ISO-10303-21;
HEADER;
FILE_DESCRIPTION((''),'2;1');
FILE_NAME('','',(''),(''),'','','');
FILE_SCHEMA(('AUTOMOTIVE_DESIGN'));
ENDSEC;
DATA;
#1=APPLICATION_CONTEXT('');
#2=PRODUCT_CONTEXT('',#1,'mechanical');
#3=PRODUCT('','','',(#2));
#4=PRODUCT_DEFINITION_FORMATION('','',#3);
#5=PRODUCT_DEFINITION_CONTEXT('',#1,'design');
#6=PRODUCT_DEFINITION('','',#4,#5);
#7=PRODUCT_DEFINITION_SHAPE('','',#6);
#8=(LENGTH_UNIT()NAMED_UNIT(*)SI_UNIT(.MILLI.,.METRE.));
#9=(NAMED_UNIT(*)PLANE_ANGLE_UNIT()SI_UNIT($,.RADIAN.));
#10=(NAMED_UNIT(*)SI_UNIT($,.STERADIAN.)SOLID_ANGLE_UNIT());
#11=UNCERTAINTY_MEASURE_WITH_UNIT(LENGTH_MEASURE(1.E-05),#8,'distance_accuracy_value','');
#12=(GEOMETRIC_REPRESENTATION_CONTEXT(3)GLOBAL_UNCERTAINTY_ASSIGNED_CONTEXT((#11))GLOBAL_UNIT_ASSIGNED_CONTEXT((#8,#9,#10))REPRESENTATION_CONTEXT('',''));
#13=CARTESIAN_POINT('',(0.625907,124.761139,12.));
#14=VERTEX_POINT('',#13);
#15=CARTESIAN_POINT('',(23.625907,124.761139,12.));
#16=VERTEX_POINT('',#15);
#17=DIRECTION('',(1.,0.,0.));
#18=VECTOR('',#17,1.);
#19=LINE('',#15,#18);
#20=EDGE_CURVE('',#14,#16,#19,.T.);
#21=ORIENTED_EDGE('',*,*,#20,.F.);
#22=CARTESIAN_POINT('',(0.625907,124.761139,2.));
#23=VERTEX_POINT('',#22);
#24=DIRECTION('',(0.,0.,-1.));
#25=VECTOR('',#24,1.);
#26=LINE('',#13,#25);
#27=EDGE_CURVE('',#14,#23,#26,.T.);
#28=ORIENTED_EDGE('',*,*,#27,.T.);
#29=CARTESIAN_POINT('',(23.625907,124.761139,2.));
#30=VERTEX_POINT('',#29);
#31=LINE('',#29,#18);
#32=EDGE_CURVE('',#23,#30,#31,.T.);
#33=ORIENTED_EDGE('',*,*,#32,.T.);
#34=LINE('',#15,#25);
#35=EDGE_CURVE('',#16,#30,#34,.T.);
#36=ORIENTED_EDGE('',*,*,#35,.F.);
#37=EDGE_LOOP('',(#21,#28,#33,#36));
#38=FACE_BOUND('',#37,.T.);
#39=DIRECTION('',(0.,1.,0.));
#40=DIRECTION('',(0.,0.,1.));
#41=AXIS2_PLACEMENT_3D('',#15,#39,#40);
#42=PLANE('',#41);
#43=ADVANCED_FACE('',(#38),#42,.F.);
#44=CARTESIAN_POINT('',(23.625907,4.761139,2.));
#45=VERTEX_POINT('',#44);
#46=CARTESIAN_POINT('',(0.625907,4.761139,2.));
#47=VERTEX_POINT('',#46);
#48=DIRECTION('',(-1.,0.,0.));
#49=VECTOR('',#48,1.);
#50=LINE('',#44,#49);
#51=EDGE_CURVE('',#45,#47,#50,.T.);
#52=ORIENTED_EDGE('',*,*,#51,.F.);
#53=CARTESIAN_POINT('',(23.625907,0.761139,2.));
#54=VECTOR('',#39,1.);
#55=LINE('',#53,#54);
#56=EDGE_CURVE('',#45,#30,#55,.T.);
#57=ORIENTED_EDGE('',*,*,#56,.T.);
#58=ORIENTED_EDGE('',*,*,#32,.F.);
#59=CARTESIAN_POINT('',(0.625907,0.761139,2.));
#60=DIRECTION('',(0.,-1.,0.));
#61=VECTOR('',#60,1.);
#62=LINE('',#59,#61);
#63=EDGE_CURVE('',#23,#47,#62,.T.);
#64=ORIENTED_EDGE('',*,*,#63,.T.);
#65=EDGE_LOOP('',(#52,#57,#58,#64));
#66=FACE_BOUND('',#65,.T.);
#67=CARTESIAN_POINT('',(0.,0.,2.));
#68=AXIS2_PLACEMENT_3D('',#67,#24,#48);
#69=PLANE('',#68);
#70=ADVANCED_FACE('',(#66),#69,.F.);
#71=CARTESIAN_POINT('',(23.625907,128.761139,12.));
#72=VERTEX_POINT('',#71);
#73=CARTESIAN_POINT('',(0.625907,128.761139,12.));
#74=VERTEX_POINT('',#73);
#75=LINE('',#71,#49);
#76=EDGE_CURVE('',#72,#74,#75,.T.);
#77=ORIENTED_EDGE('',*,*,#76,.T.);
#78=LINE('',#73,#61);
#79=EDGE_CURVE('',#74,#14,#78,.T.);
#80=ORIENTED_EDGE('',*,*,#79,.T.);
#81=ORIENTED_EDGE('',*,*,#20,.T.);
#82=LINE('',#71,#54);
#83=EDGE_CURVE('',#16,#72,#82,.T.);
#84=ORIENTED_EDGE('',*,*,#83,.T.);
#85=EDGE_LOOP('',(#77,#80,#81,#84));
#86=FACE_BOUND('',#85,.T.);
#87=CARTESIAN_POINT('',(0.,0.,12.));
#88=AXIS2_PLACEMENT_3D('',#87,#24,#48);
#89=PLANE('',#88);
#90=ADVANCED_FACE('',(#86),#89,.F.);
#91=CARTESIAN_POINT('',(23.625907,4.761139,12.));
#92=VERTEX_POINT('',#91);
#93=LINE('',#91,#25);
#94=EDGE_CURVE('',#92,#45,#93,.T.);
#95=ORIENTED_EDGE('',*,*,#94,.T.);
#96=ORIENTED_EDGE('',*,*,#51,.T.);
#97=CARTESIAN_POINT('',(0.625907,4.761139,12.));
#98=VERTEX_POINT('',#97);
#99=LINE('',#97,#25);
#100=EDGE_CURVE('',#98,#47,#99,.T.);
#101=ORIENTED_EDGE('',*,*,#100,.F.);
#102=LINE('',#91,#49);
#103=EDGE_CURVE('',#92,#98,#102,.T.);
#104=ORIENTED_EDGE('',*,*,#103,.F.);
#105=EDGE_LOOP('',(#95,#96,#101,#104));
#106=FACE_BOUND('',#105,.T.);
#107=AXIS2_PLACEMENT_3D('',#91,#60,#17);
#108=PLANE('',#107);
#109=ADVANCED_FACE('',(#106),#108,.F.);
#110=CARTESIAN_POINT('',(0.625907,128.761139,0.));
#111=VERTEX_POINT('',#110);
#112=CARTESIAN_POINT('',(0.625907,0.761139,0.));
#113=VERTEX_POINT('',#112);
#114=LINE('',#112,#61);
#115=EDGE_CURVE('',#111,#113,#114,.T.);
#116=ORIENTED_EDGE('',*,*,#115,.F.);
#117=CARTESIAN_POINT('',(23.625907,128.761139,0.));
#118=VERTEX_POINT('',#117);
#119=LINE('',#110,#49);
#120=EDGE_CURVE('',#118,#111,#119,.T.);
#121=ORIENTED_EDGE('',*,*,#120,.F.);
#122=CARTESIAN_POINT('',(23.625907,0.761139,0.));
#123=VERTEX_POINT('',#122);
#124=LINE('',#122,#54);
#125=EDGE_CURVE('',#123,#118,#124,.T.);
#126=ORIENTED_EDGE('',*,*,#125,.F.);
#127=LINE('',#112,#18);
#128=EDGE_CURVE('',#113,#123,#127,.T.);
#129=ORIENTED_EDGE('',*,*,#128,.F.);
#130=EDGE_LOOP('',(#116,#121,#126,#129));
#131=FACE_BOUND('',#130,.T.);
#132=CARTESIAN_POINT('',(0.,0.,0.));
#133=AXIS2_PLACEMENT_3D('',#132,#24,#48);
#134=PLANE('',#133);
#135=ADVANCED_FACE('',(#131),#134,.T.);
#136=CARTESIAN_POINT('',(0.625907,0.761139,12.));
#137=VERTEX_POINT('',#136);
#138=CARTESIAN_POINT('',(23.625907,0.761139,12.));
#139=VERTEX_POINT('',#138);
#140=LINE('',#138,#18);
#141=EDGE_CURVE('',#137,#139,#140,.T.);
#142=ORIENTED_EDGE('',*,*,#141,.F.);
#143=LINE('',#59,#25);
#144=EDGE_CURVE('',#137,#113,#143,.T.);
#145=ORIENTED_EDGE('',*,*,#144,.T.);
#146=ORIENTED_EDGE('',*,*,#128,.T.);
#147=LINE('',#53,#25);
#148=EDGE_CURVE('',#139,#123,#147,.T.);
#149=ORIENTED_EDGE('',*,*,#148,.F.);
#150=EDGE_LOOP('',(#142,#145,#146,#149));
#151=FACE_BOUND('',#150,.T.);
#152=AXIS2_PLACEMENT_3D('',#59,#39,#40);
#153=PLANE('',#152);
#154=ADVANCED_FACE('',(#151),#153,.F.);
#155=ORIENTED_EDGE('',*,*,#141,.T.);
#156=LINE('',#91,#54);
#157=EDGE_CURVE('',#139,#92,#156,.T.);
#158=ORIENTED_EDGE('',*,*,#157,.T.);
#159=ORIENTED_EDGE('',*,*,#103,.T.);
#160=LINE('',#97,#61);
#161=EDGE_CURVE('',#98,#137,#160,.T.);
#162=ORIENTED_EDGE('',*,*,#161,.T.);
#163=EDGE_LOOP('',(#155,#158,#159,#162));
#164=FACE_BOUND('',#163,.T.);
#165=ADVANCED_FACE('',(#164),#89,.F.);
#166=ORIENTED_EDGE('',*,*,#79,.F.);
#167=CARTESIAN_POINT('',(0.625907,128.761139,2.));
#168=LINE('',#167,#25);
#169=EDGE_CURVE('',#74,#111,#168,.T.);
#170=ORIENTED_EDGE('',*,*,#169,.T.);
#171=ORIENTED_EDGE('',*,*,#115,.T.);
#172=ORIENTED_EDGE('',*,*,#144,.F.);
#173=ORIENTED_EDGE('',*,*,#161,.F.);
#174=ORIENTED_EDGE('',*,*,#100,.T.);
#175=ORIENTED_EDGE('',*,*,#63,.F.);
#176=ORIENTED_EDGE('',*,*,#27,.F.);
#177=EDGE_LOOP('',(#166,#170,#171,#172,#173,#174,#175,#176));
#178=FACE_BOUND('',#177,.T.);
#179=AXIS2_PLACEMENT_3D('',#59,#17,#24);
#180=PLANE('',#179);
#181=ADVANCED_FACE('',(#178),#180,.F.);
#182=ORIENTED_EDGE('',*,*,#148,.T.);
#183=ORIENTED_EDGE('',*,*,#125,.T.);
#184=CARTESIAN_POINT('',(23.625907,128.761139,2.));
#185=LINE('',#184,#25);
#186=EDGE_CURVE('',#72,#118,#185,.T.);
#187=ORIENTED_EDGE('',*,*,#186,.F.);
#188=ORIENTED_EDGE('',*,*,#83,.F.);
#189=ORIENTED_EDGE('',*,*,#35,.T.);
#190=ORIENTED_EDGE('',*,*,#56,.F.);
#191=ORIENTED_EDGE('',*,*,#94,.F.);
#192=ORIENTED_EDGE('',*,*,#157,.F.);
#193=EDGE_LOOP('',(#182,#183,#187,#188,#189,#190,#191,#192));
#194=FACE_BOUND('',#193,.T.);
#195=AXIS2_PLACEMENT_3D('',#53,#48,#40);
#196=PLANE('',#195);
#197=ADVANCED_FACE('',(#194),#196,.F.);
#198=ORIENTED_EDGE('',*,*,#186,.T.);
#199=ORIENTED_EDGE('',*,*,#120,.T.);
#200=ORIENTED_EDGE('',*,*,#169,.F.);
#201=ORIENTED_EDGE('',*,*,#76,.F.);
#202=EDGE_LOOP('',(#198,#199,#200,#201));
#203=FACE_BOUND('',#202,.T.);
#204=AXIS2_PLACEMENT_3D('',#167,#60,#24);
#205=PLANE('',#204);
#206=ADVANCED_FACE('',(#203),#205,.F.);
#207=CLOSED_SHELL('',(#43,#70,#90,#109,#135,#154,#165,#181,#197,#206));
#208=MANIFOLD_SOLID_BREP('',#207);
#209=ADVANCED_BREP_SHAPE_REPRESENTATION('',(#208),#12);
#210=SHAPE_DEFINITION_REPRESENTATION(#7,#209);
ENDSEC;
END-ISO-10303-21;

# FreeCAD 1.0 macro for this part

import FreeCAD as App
import Part
import Sketcher
from FreeCAD import Vector

doc = App.newDocument("Part")
params = doc.addObject("Spreadsheet::Sheet", "Params")
for row, (alias, value) in enumerate([
    ("sketch1_width", "23 mm"),
    ("sketch1_height", "128 mm"),
    ("pad1_length", "2 mm"),
    ("sketch2_width", "23 mm"),
    ("sketch2_height", "4 mm"),
    ("pad2_length", "10 mm"),
], start=1):
    params.set(f"A{row}", alias)
    params.set(f"B{row}", "=" + value)
    params.setAlias(f"B{row}", alias)

body = doc.addObject("PartDesign::Body", "Body")

sketch1 = body.newObject("Sketcher::SketchObject", "Sketch")
sketch1.AttachmentSupport = (doc.getObject("XY_Plane"), [""])
sketch1.MapMode = "FlatFace"
sketch1.addGeometry(Part.LineSegment(Vector(1, 129, 0), Vector(1, 1, 0)), False)
sketch1.addGeometry(Part.LineSegment(Vector(1, 1, 0), Vector(24, 1, 0)), False)
sketch1.addGeometry(Part.LineSegment(Vector(24, 1, 0), Vector(24, 129, 0)), False)
sketch1.addGeometry(Part.LineSegment(Vector(24, 129, 0), Vector(1, 129, 0)), False)
sketch1.addConstraint(Sketcher.Constraint("Coincident", 0, 2, 1, 1))
sketch1.addConstraint(Sketcher.Constraint("Coincident", 1, 2, 2, 1))
sketch1.addConstraint(Sketcher.Constraint("Coincident", 2, 2, 3, 1))
sketch1.addConstraint(Sketcher.Constraint("Coincident", 3, 2, 0, 1))
sketch1.addConstraint(Sketcher.Constraint("Vertical", 0))
sketch1.addConstraint(Sketcher.Constraint("Horizontal", 1))
sketch1.addConstraint(Sketcher.Constraint("Vertical", 2))
sketch1.addConstraint(Sketcher.Constraint("Horizontal", 3))
sketch1.addConstraint(Sketcher.Constraint("DistanceX", 1, 1, 1, 2, 23.0))
sketch1.addConstraint(Sketcher.Constraint("DistanceY", 0, 2, 0, 1, 128.0))
sketch1.addConstraint(Sketcher.Constraint("DistanceY", -1, 1, 0, 2, 0.761139))
sketch1.addConstraint(Sketcher.Constraint("DistanceX", -1, 1, 0, 2, 0.625907))
sketch1.setExpression("Constraints[8]", "Params.sketch1_width")
sketch1.setExpression("Constraints[9]", "Params.sketch1_height")
pad1 = body.newObject("PartDesign::Pad", "Pad")
pad1.Profile = sketch1
pad1.setExpression("Length", "Params.pad1_length")

sketch2 = body.newObject("Sketcher::SketchObject", "Sketch001")
sketch2.AttachmentSupport = (doc.getObject("XY_Plane"), [""])
sketch2.MapMode = "FlatFace"
sketch2.AttachmentOffset = App.Placement(Vector(0, 0, 2), App.Rotation())
sketch2.addGeometry(Part.LineSegment(Vector(0.6, 128.8, 0), Vector(0.6, 124.8, 0)), False)
sketch2.addGeometry(Part.LineSegment(Vector(0.6, 124.8, 0), Vector(23.6, 124.8, 0)), False)
sketch2.addGeometry(Part.LineSegment(Vector(23.6, 124.8, 0), Vector(23.6, 128.8, 0)), False)
sketch2.addGeometry(Part.LineSegment(Vector(23.6, 128.8, 0), Vector(0.6, 128.8, 0)), False)
sketch2.addGeometry(Part.LineSegment(Vector(0.6, 4.8, 0), Vector(0.6, 0.8, 0)), False)
sketch2.addGeometry(Part.LineSegment(Vector(0.6, 0.8, 0), Vector(23.6, 0.8, 0)), False)
sketch2.addGeometry(Part.LineSegment(Vector(23.6, 0.8, 0), Vector(23.6, 4.8, 0)), False)
sketch2.addGeometry(Part.LineSegment(Vector(23.6, 4.8, 0), Vector(0.6, 4.8, 0)), False)
sketch2.addConstraint(Sketcher.Constraint("Coincident", 0, 2, 1, 1))
sketch2.addConstraint(Sketcher.Constraint("Coincident", 1, 2, 2, 1))
sketch2.addConstraint(Sketcher.Constraint("Coincident", 2, 2, 3, 1))
sketch2.addConstraint(Sketcher.Constraint("Coincident", 3, 2, 0, 1))
sketch2.addConstraint(Sketcher.Constraint("Coincident", 4, 2, 5, 1))
sketch2.addConstraint(Sketcher.Constraint("Coincident", 5, 2, 6, 1))
sketch2.addConstraint(Sketcher.Constraint("Coincident", 6, 2, 7, 1))
sketch2.addConstraint(Sketcher.Constraint("Coincident", 7, 2, 4, 1))
sketch2.addConstraint(Sketcher.Constraint("Vertical", 0))
sketch2.addConstraint(Sketcher.Constraint("Horizontal", 1))
sketch2.addConstraint(Sketcher.Constraint("Vertical", 2))
sketch2.addConstraint(Sketcher.Constraint("Horizontal", 3))
sketch2.addConstraint(Sketcher.Constraint("Vertical", 4))
sketch2.addConstraint(Sketcher.Constraint("Horizontal", 5))
sketch2.addConstraint(Sketcher.Constraint("Vertical", 6))
sketch2.addConstraint(Sketcher.Constraint("Horizontal", 7))
sketch2.addConstraint(Sketcher.Constraint("Vertical", 3, 2, 4, 2))
sketch2.addConstraint(Sketcher.Constraint("Vertical", 2, 2, 5, 2))
sketch2.addConstraint(Sketcher.Constraint("Equal", 2, 4))
sketch2.addConstraint(Sketcher.Constraint("DistanceX", 1, 1, 1, 2, 23.0))
sketch2.addConstraint(Sketcher.Constraint("DistanceY", 0, 2, 0, 1, 4.0))
sketch2.addConstraint(Sketcher.Constraint("DistanceY", 4, 2, 0, 2, 124.0))
sketch2.addConstraint(Sketcher.Constraint("DistanceY", -1, 1, 0, 2, 124.761139))
sketch2.addConstraint(Sketcher.Constraint("DistanceX", -1, 1, 0, 2, 0.625907))
sketch2.setExpression("Constraints[19]", "Params.sketch2_width")
sketch2.setExpression("Constraints[20]", "Params.sketch2_height")
pad2 = body.newObject("PartDesign::Pad", "Pad001")
pad2.Profile = sketch2
pad2.setExpression("Length", "Params.pad2_length")

doc.recompute()
